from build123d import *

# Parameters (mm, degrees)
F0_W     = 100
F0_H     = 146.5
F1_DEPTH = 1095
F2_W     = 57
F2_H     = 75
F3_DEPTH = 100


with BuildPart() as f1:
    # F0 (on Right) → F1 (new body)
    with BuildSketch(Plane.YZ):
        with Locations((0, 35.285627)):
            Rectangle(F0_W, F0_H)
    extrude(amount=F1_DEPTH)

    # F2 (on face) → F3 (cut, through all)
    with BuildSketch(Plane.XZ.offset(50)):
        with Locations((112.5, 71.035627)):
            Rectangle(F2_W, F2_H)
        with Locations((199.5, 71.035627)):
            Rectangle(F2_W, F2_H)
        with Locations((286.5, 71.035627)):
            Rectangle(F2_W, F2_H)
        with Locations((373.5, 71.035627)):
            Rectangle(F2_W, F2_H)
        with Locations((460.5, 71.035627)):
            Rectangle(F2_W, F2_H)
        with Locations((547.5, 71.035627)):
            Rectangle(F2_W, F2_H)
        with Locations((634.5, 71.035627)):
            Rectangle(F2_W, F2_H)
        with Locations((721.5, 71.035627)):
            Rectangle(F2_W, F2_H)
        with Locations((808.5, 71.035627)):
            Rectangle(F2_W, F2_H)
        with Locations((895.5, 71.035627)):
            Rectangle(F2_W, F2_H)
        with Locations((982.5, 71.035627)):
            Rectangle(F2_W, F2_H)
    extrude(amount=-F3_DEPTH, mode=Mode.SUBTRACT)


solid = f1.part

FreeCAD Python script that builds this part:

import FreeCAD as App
import Part
import Sketcher

V = App.Vector


def add_polygon(sketch, points):
    """Adds a closed chain of lines whose ends are joined by coincident constraints."""
    first, n = sketch.GeometryCount, len(points)
    for a, b in zip(points, points[1:] + points[:1]):
        sketch.addGeometry(Part.LineSegment(App.Vector(*a, 0), App.Vector(*b, 0)), False)
    for i in range(n):
        sketch.addConstraint(Sketcher.Constraint("Coincident", first + i, 2, first + (i + 1) % n, 1))

doc = App.newDocument("Part")
body = doc.addObject("PartDesign::Body", "Body")

# Sketch on YZ plane
sketch1 = body.newObject("Sketcher::SketchObject", "Sketch")
sketch1.AttachmentSupport = (doc.getObject("YZ_Plane"), [""])
sketch1.MapMode = "FlatFace"
add_polygon(sketch1, [(-50, 109), (-50, -38), (50, -38), (50, 109)])  # lines 0-3
sketch1.addConstraint(Sketcher.Constraint("Vertical", 0))
sketch1.addConstraint(Sketcher.Constraint("Horizontal", 1))
sketch1.addConstraint(Sketcher.Constraint("Vertical", 2))
sketch1.addConstraint(Sketcher.Constraint("Horizontal", 3))
sketch1.addConstraint(Sketcher.Constraint("DistanceX", 1, 1, 1, 2, 100.0))
sketch1.addConstraint(Sketcher.Constraint("DistanceY", 0, 2, 0, 1, 146.5))
sketch1.addConstraint(Sketcher.Constraint("DistanceX", 0, 2, -1, 1, 50.0))
sketch1.addConstraint(Sketcher.Constraint("DistanceY", 0, 2, -1, 1, 37.964373))
pad1 = body.newObject("PartDesign::Pad", "Pad")
pad1.Profile = sketch1
pad1.Length = 1095

# Sketch on XZ plane
sketch2 = body.newObject("Sketcher::SketchObject", "Sketch001")
sketch2.AttachmentSupport = (doc.getObject("XZ_Plane"), [""])
sketch2.MapMode = "FlatFace"
sketch2.AttachmentOffset = App.Placement(V(0, 0, 50), App.Rotation())
add_polygon(sketch2, [(84, 109), (84, 34), (141, 34), (141, 109)])  # lines 0-3
add_polygon(sketch2, [(171, 109), (171, 34), (228, 34), (228, 109)])  # lines 4-7
add_polygon(sketch2, [(258, 109), (258, 34), (315, 34), (315, 109)])  # lines 8-11
add_polygon(sketch2, [(345, 109), (345, 34), (402, 34), (402, 109)])  # lines 12-15
add_polygon(sketch2, [(432, 109), (432, 34), (489, 34), (489, 109)])  # lines 16-19
add_polygon(sketch2, [(519, 109), (519, 34), (576, 34), (576, 109)])  # lines 20-23
add_polygon(sketch2, [(606, 109), (606, 34), (663, 34), (663, 109)])  # lines 24-27
add_polygon(sketch2, [(693, 109), (693, 34), (750, 34), (750, 109)])  # lines 28-31
add_polygon(sketch2, [(780, 109), (780, 34), (837, 34), (837, 109)])  # lines 32-35
add_polygon(sketch2, [(867, 109), (867, 34), (924, 34), (924, 109)])  # lines 36-39
add_polygon(sketch2, [(954, 109), (954, 34), (1011, 34), (1011, 109)])  # lines 40-43
sketch2.addConstraint(Sketcher.Constraint("Vertical", 0))
sketch2.addConstraint(Sketcher.Constraint("Horizontal", 1))
sketch2.addConstraint(Sketcher.Constraint("Vertical", 2))
sketch2.addConstraint(Sketcher.Constraint("Horizontal", 3))
sketch2.addConstraint(Sketcher.Constraint("Vertical", 4))
sketch2.addConstraint(Sketcher.Constraint("Horizontal", 5))
sketch2.addConstraint(Sketcher.Constraint("Vertical", 6))
sketch2.addConstraint(Sketcher.Constraint("Horizontal", 7))
sketch2.addConstraint(Sketcher.Constraint("Vertical", 8))
sketch2.addConstraint(Sketcher.Constraint("Horizontal", 9))
sketch2.addConstraint(Sketcher.Constraint("Vertical", 10))
sketch2.addConstraint(Sketcher.Constraint("Horizontal", 11))
sketch2.addConstraint(Sketcher.Constraint("Vertical", 12))
sketch2.addConstraint(Sketcher.Constraint("Horizontal", 13))
sketch2.addConstraint(Sketcher.Constraint("Vertical", 14))
sketch2.addConstraint(Sketcher.Constraint("Horizontal", 15))
sketch2.addConstraint(Sketcher.Constraint("Vertical", 16))
sketch2.addConstraint(Sketcher.Constraint("Horizontal", 17))
sketch2.addConstraint(Sketcher.Constraint("Vertical", 18))
sketch2.addConstraint(Sketcher.Constraint("Horizontal", 19))
sketch2.addConstraint(Sketcher.Constraint("Vertical", 20))
sketch2.addConstraint(Sketcher.Constraint("Horizontal", 21))
sketch2.addConstraint(Sketcher.Constraint("Vertical", 22))
sketch2.addConstraint(Sketcher.Constraint("Horizontal", 23))
sketch2.addConstraint(Sketcher.Constraint("Vertical", 24))
sketch2.addConstraint(Sketcher.Constraint("Horizontal", 25))
sketch2.addConstraint(Sketcher.Constraint("Vertical", 26))
sketch2.addConstraint(Sketcher.Constraint("Horizontal", 27))
sketch2.addConstraint(Sketcher.Constraint("Vertical", 28))
sketch2.addConstraint(Sketcher.Constraint("Horizontal", 29))
sketch2.addConstraint(Sketcher.Constraint("Vertical", 30))
sketch2.addConstraint(Sketcher.Constraint("Horizontal", 31))
sketch2.addConstraint(Sketcher.Constraint("Vertical", 32))
sketch2.addConstraint(Sketcher.Constraint("Horizontal", 33))
sketch2.addConstraint(Sketcher.Constraint("Vertical", 34))
sketch2.addConstraint(Sketcher.Constraint("Horizontal", 35))
sketch2.addConstraint(Sketcher.Constraint("Vertical", 36))
sketch2.addConstraint(Sketcher.Constraint("Horizontal", 37))
sketch2.addConstraint(Sketcher.Constraint("Vertical", 38))
sketch2.addConstraint(Sketcher.Constraint("Horizontal", 39))
sketch2.addConstraint(Sketcher.Constraint("Vertical", 40))
sketch2.addConstraint(Sketcher.Constraint("Horizontal", 41))
sketch2.addConstraint(Sketcher.Constraint("Vertical", 42))
sketch2.addConstraint(Sketcher.Constraint("Horizontal", 43))
sketch2.addConstraint(Sketcher.Constraint("Horizontal", 1, 2, 4, 2))
sketch2.addConstraint(Sketcher.Constraint("Horizontal", 3, 2, 6, 2))
sketch2.addConstraint(Sketcher.Constraint("Horizontal", 5, 2, 8, 2))
sketch2.addConstraint(Sketcher.Constraint("Horizontal", 7, 2, 10, 2))
sketch2.addConstraint(Sketcher.Constraint("Horizontal", 9, 2, 12, 2))
sketch2.addConstraint(Sketcher.Constraint("Horizontal", 11, 2, 14, 2))
sketch2.addConstraint(Sketcher.Constraint("Horizontal", 13, 2, 16, 2))
sketch2.addConstraint(Sketcher.Constraint("Horizontal", 15, 2, 18, 2))
sketch2.addConstraint(Sketcher.Constraint("Horizontal", 17, 2, 20, 2))
sketch2.addConstraint(Sketcher.Constraint("Horizontal", 19, 2, 22, 2))
sketch2.addConstraint(Sketcher.Constraint("Horizontal", 21, 2, 24, 2))
sketch2.addConstraint(Sketcher.Constraint("Horizontal", 23, 2, 26, 2))
sketch2.addConstraint(Sketcher.Constraint("Horizontal", 25, 2, 28, 2))
sketch2.addConstraint(Sketcher.Constraint("Horizontal", 27, 2, 30, 2))
sketch2.addConstraint(Sketcher.Constraint("Horizontal", 29, 2, 32, 2))
sketch2.addConstraint(Sketcher.Constraint("Horizontal", 31, 2, 34, 2))
sketch2.addConstraint(Sketcher.Constraint("Horizontal", 33, 2, 36, 2))
sketch2.addConstraint(Sketcher.Constraint("Horizontal", 35, 2, 38, 2))
sketch2.addConstraint(Sketcher.Constraint("Horizontal", 37, 2, 40, 2))
sketch2.addConstraint(Sketcher.Constraint("Horizontal", 39, 2, 42, 2))
sketch2.addConstraint(Sketcher.Constraint("Equal", 3, 5))
sketch2.addConstraint(Sketcher.Constraint("Equal", 7, 9))
sketch2.addConstraint(Sketcher.Constraint("Equal", 11, 13))
sketch2.addConstraint(Sketcher.Constraint("Equal", 15, 17))
sketch2.addConstraint(Sketcher.Constraint("Equal", 19, 21))
sketch2.addConstraint(Sketcher.Constraint("Equal", 23, 25))
sketch2.addConstraint(Sketcher.Constraint("Equal", 27, 29))
sketch2.addConstraint(Sketcher.Constraint("Equal", 31, 33))
sketch2.addConstraint(Sketcher.Constraint("Equal", 35, 37))
sketch2.addConstraint(Sketcher.Constraint("Equal", 39, 41))
sketch2.addConstraint(Sketcher.Constraint("DistanceX", 1, 1, 1, 2, 57.0))
sketch2.addConstraint(Sketcher.Constraint("DistanceY", 0, 2, 0, 1, 75.0))
sketch2.addConstraint(Sketcher.Constraint("DistanceX", -1, 1, 0, 2, 84.0))
sketch2.addConstraint(Sketcher.Constraint("DistanceX", -1, 1, 4, 2, 171.0))
sketch2.addConstraint(Sketcher.Constraint("DistanceX", -1, 1, 8, 2, 258.0))
sketch2.addConstraint(Sketcher.Constraint("DistanceX", -1, 1, 12, 2, 345.0))
sketch2.addConstraint(Sketcher.Constraint("DistanceX", -1, 1, 16, 2, 432.0))
sketch2.addConstraint(Sketcher.Constraint("DistanceX", -1, 1, 20, 2, 519.0))
sketch2.addConstraint(Sketcher.Constraint("DistanceX", -1, 1, 24, 2, 606.0))
sketch2.addConstraint(Sketcher.Constraint("DistanceX", -1, 1, 28, 2, 693.0))
sketch2.addConstraint(Sketcher.Constraint("DistanceX", -1, 1, 32, 2, 780.0))
sketch2.addConstraint(Sketcher.Constraint("DistanceX", -1, 1, 36, 2, 867.0))
sketch2.addConstraint(Sketcher.Constraint("DistanceX", -1, 1, 40, 2, 954.0))
sketch2.addConstraint(Sketcher.Constraint("DistanceY", -1, 1, 0, 2, 33.535627))
pocket1 = body.newObject("PartDesign::Pocket", "Pocket")
pocket1.Profile = sketch2
pocket1.Type = "ThroughAll"

doc.recompute()
